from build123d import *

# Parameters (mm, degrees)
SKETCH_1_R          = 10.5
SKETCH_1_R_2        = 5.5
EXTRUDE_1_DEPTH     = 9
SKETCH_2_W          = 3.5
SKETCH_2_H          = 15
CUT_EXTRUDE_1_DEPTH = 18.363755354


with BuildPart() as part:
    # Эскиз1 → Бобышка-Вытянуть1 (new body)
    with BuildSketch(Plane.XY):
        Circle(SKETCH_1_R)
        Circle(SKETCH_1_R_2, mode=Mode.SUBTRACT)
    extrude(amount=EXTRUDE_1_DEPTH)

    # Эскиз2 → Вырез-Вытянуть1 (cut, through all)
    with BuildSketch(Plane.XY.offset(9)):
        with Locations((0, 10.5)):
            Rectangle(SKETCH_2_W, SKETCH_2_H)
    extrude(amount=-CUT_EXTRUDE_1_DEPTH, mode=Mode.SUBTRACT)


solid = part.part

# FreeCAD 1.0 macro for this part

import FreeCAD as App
import Part
import Sketcher
from FreeCAD import Vector
Q = App.Units.Quantity

doc = App.newDocument("Part")
body = doc.addObject("PartDesign::Body", "Body")

# Sketch on XY plane
sketch1 = body.newObject("Sketcher::SketchObject", "Sketch")
sketch1.AttachmentSupport = (doc.getObject("XY_Plane"), [""])
sketch1.MapMode = "FlatFace"
sketch1.addGeometry(Part.Circle(Vector(0, 0, 0), Vector(0, 0, 1), 10), False)
sketch1.addGeometry(Part.Circle(Vector(0, 0, 0), Vector(0, 0, 1), 6), False)
sketch1.addConstraint(Sketcher.Constraint("Coincident", 0, 3, -1, 1))
sketch1.addConstraint(Sketcher.Constraint("Coincident", 1, 3, -1, 1))
sketch1.addConstraint(Sketcher.Constraint("Diameter", 0, Q("21 mm")))
sketch1.addConstraint(Sketcher.Constraint("Diameter", 1, Q("11 mm")))
pad1 = body.newObject("PartDesign::Pad", "Pad")
pad1.Profile = sketch1
pad1.Length = 9

# Sketch on XY plane
sketch2 = body.newObject("Sketcher::SketchObject", "Sketch001")
sketch2.AttachmentSupport = (doc.getObject("XY_Plane"), [""])
sketch2.MapMode = "FlatFace"
sketch2.AttachmentOffset = App.Placement(Vector(0, 0, 9), App.Rotation())
sketch2.addGeometry(Part.LineSegment(Vector(-1.8, 18, 0), Vector(-1.8, 3, 0)), False)
sketch2.addGeometry(Part.LineSegment(Vector(-1.8, 3, 0), Vector(1.8, 3, 0)), False)
sketch2.addGeometry(Part.LineSegment(Vector(1.8, 3, 0), Vector(1.8, 18, 0)), False)
sketch2.addGeometry(Part.LineSegment(Vector(1.8, 18, 0), Vector(-1.8, 18, 0)), False)
sketch2.addConstraint(Sketcher.Constraint("Coincident", 0, 2, 1, 1))
sketch2.addConstraint(Sketcher.Constraint("Coincident", 1, 2, 2, 1))
sketch2.addConstraint(Sketcher.Constraint("Coincident", 2, 2, 3, 1))
sketch2.addConstraint(Sketcher.Constraint("Coincident", 3, 2, 0, 1))
sketch2.addConstraint(Sketcher.Constraint("Vertical", 0))
sketch2.addConstraint(Sketcher.Constraint("Horizontal", 1))
sketch2.addConstraint(Sketcher.Constraint("Vertical", 2))
sketch2.addConstraint(Sketcher.Constraint("Horizontal", 3))
sketch2.addConstraint(Sketcher.Constraint("DistanceY", 0, 2, 0, 1, Q("15 mm")))
sketch2.addConstraint(Sketcher.Constraint("DistanceX", 1, 1, 1, 2, Q("3.5 mm")))
sketch2.addConstraint(Sketcher.Constraint("DistanceY", -1, 1, 0, 2, Q("3 mm")))
sketch2.addConstraint(Sketcher.Constraint("DistanceX", 0, 2, -1, 1, Q("1.75 mm")))
pocket1 = body.newObject("PartDesign::Pocket", "Pocket")
pocket1.Profile = sketch2
pocket1.Type = "ThroughAll"

doc.recompute()
